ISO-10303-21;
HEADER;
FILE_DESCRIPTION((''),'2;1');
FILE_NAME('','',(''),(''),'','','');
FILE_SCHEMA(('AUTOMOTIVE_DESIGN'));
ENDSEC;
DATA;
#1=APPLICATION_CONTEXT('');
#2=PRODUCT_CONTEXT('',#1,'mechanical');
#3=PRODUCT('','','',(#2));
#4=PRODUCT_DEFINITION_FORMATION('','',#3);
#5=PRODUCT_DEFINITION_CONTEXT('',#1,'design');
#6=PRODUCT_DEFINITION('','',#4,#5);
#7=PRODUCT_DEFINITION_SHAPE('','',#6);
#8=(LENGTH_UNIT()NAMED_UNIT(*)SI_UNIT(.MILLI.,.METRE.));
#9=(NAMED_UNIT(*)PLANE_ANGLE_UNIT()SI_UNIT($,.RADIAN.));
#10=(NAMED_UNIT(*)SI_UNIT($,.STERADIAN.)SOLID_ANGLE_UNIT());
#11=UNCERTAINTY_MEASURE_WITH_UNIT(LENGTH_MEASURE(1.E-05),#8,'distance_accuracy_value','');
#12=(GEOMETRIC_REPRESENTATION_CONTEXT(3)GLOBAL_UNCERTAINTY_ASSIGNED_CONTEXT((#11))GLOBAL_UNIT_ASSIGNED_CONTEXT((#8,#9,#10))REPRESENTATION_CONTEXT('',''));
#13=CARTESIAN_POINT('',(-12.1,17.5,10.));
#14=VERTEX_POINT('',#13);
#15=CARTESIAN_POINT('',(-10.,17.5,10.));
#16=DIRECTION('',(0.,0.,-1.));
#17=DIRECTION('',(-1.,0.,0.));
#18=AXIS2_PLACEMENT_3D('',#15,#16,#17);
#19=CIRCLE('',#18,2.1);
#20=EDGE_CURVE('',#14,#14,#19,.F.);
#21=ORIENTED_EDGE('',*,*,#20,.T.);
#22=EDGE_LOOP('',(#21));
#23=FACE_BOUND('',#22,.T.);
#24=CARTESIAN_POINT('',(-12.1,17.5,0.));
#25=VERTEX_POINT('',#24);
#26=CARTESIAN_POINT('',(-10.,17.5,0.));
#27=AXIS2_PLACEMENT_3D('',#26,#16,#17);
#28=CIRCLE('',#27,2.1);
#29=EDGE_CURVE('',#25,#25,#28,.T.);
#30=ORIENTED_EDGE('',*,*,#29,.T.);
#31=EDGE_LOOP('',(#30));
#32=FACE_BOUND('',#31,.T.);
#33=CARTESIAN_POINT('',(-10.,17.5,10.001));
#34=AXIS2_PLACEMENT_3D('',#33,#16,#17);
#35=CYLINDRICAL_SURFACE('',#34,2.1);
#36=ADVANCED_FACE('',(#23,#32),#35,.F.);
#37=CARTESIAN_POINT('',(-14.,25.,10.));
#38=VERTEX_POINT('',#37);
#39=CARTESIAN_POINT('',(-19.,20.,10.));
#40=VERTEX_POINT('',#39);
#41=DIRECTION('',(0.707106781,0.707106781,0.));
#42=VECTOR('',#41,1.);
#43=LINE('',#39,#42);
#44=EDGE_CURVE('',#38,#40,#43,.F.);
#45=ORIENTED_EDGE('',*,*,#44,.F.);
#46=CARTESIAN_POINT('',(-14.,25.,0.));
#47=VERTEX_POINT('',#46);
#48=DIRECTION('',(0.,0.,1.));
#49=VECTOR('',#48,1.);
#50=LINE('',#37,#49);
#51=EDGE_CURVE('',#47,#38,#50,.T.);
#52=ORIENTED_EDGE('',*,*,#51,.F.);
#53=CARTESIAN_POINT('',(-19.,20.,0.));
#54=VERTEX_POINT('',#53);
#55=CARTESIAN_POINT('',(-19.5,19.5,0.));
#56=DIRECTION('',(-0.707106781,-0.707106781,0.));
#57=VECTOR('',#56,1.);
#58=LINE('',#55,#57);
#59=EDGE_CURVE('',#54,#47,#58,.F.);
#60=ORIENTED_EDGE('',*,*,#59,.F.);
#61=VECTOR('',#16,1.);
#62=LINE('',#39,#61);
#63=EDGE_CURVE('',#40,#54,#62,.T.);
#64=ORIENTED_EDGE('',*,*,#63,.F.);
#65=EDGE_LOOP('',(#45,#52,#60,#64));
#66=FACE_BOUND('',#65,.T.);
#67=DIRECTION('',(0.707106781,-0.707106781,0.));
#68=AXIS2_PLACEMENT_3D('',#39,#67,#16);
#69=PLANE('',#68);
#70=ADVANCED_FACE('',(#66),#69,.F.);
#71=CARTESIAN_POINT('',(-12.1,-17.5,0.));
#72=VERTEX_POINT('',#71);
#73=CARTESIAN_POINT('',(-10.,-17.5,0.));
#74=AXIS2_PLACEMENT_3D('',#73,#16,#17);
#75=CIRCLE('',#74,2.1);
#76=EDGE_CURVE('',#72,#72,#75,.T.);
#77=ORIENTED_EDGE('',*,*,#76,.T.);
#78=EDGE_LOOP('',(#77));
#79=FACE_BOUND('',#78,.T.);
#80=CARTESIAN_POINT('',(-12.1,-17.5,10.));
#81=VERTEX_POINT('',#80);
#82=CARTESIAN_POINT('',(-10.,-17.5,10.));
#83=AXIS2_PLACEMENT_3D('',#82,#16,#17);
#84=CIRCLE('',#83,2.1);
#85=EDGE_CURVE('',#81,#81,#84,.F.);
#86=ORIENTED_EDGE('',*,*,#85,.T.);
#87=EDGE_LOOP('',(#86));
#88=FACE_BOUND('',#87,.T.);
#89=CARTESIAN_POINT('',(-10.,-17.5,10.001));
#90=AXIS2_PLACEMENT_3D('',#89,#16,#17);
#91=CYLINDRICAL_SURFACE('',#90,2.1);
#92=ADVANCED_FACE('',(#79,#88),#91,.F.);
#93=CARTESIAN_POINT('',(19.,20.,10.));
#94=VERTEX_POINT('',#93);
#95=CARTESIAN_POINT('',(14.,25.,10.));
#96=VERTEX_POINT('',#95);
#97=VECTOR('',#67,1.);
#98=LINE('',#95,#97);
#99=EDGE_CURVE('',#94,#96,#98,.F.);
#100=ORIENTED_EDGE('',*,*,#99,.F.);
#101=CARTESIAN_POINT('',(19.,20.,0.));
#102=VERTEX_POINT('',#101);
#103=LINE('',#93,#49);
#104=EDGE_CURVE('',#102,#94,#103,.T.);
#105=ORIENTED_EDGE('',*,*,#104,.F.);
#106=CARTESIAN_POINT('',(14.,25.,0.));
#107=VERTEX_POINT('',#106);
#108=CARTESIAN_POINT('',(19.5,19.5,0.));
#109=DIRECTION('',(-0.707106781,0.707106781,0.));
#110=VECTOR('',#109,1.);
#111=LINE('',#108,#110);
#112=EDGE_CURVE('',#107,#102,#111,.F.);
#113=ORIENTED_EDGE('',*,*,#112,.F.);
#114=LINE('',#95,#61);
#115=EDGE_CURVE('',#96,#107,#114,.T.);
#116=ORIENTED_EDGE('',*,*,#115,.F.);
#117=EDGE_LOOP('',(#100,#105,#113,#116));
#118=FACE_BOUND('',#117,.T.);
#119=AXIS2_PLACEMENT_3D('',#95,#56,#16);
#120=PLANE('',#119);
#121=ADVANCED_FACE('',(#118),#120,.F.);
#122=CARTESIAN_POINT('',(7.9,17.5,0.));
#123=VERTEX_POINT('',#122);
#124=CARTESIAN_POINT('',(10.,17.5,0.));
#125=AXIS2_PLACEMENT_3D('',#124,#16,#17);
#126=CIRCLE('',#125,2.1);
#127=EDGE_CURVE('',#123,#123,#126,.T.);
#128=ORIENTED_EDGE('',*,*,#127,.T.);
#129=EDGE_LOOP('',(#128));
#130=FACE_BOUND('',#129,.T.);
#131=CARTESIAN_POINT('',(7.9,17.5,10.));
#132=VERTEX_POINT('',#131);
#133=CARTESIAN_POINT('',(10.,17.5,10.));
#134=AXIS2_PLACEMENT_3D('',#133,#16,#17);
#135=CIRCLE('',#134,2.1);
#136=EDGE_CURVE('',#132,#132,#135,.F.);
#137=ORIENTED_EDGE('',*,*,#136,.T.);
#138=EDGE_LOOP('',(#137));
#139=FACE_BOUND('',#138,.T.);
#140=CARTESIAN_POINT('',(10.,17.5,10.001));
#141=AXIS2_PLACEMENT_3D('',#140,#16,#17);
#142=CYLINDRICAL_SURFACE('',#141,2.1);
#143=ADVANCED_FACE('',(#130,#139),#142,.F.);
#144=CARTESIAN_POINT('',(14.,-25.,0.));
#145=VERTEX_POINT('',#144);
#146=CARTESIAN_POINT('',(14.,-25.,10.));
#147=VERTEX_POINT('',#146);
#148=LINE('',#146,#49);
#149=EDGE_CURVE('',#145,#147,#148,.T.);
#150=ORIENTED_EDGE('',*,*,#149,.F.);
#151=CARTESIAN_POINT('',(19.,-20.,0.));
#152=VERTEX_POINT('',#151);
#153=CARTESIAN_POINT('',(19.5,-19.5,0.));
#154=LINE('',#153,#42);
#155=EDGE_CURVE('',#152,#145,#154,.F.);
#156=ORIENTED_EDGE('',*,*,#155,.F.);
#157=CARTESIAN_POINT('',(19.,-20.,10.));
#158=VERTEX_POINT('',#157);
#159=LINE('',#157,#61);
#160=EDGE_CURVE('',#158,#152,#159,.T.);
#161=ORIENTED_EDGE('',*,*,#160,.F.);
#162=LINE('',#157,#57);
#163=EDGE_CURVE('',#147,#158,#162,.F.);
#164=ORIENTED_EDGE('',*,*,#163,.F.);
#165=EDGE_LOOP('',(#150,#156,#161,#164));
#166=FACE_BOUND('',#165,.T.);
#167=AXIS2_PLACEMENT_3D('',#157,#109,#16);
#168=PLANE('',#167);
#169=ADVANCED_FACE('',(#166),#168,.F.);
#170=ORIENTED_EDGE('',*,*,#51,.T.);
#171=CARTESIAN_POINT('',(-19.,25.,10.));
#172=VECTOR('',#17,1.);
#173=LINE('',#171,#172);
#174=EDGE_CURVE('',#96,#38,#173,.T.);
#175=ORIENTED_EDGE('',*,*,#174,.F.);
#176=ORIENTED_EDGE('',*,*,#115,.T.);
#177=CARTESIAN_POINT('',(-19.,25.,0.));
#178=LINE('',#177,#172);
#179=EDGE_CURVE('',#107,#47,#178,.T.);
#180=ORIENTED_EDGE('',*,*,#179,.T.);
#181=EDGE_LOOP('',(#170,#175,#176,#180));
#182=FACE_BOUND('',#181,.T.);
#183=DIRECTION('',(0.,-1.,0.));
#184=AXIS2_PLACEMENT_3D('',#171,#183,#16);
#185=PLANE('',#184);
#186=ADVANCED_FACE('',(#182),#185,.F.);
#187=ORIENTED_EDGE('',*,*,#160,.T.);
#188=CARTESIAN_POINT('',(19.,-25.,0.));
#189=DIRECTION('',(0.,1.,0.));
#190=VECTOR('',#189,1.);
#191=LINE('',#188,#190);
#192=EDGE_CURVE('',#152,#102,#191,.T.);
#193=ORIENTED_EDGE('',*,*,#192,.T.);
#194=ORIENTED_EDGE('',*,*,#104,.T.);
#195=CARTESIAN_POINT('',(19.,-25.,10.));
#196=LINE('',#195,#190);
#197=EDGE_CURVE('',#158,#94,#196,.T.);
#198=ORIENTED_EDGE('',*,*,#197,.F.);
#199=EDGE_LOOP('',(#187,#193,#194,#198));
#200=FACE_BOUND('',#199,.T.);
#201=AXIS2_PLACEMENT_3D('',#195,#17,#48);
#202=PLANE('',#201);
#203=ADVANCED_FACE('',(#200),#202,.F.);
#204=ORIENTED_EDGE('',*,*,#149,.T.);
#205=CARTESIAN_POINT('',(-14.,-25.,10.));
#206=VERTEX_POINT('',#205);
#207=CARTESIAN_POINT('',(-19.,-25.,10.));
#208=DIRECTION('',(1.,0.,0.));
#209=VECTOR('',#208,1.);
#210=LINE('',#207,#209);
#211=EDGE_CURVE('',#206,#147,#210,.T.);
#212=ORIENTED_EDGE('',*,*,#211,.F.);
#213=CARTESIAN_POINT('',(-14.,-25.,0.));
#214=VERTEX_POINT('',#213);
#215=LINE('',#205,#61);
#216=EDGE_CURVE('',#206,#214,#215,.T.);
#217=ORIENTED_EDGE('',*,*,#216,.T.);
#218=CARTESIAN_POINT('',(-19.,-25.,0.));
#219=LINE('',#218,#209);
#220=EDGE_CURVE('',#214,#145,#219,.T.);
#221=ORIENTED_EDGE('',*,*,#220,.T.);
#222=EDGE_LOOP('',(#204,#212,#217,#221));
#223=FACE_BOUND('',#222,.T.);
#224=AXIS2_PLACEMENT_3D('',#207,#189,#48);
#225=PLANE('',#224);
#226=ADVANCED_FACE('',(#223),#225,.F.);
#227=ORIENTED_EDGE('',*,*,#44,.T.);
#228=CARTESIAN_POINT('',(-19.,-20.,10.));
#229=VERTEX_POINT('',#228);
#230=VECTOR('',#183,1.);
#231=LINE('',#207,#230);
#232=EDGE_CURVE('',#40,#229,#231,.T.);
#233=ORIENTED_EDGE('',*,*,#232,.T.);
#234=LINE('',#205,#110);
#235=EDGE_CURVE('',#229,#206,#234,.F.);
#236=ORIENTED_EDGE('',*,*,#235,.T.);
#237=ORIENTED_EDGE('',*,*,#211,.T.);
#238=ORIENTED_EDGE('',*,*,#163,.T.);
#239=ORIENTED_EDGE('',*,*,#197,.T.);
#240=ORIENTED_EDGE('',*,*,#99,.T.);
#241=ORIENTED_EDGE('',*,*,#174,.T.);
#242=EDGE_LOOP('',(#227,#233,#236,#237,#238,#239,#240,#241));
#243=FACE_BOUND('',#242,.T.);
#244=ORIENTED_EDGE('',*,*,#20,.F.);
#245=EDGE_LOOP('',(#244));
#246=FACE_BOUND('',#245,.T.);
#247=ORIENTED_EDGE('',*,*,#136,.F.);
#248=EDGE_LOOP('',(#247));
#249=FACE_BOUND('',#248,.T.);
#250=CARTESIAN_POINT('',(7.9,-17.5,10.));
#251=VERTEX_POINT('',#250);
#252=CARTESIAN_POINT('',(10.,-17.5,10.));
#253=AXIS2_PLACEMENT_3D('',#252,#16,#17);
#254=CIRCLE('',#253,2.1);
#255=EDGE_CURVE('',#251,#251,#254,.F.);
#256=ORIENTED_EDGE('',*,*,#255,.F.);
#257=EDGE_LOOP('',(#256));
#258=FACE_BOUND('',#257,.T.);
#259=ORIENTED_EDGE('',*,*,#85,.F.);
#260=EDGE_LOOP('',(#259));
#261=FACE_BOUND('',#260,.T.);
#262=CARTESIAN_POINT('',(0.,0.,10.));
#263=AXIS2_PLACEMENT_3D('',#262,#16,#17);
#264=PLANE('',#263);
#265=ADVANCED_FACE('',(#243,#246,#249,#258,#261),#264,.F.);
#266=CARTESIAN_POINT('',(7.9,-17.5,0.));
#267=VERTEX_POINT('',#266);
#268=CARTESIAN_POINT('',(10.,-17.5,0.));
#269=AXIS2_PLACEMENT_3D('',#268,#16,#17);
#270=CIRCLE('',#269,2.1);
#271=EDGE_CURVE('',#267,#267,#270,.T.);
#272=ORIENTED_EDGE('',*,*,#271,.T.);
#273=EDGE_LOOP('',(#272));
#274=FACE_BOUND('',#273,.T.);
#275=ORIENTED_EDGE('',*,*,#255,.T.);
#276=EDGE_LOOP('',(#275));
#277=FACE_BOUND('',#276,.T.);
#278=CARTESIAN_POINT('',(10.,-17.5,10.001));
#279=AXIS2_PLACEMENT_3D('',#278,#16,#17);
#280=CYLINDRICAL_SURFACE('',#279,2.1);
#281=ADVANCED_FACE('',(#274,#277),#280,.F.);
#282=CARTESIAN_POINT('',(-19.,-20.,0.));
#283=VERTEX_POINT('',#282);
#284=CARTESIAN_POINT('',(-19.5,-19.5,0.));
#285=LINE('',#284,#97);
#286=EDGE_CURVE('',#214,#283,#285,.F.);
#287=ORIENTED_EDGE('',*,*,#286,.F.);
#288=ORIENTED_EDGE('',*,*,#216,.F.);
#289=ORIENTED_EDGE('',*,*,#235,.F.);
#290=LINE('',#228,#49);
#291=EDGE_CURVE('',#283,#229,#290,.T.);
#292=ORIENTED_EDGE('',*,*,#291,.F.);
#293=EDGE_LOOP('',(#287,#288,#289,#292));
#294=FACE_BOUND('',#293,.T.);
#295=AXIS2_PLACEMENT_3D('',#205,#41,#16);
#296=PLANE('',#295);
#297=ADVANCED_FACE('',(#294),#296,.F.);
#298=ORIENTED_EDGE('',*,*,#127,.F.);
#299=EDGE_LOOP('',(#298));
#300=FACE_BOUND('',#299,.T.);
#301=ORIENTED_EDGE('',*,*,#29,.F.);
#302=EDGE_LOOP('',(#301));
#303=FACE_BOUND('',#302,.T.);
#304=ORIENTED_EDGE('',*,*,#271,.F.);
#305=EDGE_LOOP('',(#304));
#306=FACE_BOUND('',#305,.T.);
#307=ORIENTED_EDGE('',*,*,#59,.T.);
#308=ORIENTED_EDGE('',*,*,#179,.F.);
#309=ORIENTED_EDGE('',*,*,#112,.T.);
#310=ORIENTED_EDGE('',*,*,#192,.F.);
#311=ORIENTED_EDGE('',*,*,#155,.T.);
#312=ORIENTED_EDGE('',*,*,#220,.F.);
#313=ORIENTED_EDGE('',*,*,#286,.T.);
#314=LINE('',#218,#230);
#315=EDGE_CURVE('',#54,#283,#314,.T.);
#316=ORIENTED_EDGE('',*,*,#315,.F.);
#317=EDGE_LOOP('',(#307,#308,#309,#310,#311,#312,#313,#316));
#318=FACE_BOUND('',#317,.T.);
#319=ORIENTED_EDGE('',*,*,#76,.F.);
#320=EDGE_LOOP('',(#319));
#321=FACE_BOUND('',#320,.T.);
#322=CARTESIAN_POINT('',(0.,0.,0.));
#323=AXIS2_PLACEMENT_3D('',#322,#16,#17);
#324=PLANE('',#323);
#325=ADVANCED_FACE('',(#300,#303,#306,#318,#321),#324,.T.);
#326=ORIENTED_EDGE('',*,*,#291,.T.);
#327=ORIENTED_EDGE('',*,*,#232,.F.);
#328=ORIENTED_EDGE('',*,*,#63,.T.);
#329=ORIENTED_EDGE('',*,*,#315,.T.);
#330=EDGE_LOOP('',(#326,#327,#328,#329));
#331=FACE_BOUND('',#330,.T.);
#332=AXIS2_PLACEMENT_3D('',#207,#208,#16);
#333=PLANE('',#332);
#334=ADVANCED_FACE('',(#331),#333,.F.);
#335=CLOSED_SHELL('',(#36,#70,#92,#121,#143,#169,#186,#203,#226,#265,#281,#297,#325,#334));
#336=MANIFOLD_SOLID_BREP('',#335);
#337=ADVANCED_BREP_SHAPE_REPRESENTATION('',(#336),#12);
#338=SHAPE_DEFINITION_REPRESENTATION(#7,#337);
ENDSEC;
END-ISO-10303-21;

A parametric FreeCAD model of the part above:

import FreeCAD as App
import Part
import Sketcher
from FreeCAD import Vector


def edges_at(feature, points):
    """Names of the edges that pass closest to the given points."""
    edges = feature.Shape.Edges
    near = lambda p: min(range(len(edges)), key=lambda i: edges[i].distToShape(Part.Vertex(*p))[0])
    return sorted({f"Edge{near(p) + 1}" for p in points})


def add_polygon(sketch, points):
    """Adds a closed chain of lines whose ends are joined by coincident constraints."""
    first, n = sketch.GeometryCount, len(points)
    for a, b in zip(points, points[1:] + points[:1]):
        sketch.addGeometry(Part.LineSegment(App.Vector(*a, 0), App.Vector(*b, 0)), False)
    for i in range(n):
        sketch.addConstraint(Sketcher.Constraint("Coincident", first + i, 2, first + (i + 1) % n, 1))

doc = App.newDocument("Part")
body = doc.addObject("PartDesign::Body", "Body")

# Sketch on XY plane
sketch1 = body.newObject("Sketcher::SketchObject", "Sketch")
sketch1.AttachmentSupport = (doc.getObject("XY_Plane"), [""])
sketch1.MapMode = "FlatFace"
add_polygon(sketch1, [(-19, 25), (-19, -25), (19, -25), (19, 25)])  # lines 0-3
sketch1.addConstraint(Sketcher.Constraint("Vertical", 0))
sketch1.addConstraint(Sketcher.Constraint("Horizontal", 1))
sketch1.addConstraint(Sketcher.Constraint("Vertical", 2))
sketch1.addConstraint(Sketcher.Constraint("Horizontal", 3))
sketch1.addConstraint(Sketcher.Constraint("Symmetric", 0, 2, 2, 2, -1, 1))
sketch1.addConstraint(Sketcher.Constraint("DistanceX", 1, 1, 1, 2, 38.0))
sketch1.addConstraint(Sketcher.Constraint("DistanceY", 0, 2, 0, 1, 50.0))
pad1 = body.newObject("PartDesign::Pad", "Pad")
pad1.Profile = sketch1
pad1.Length = 10
doc.recompute()

chamfer = body.newObject("PartDesign::Chamfer", "Chamfer")
chamfer.Base = (pad1, edges_at(pad1, [
    (19, -25, 5),
    (-19, -25, 5),
    (-19, 25, 5),
    (19, 25, 5),
]))
chamfer.Size = 5

# Sketch on XY plane
sketch2 = body.newObject("Sketcher::SketchObject", "Sketch001")
sketch2.AttachmentSupport = (doc.getObject("XY_Plane"), [""])
sketch2.MapMode = "FlatFace"
sketch2.addGeometry(Part.Circle(Vector(10, 17.5, 0), Vector(0, 0, 1), 2.1), False)
sketch2.addConstraint(Sketcher.Constraint("Diameter", 0, 4.2))
sketch2.addConstraint(Sketcher.Constraint("DistanceX", -1, 1, 0, 3, 10.0))
sketch2.addConstraint(Sketcher.Constraint("DistanceY", -1, 1, 0, 3, 17.5))
pocket1 = body.newObject("PartDesign::Pocket", "Pocket")
pocket1.Profile = sketch2
pocket1.Type = "UpToFirst"
pocket1.Reversed = True

# Sketch on XY plane
sketch3 = body.newObject("Sketcher::SketchObject", "Sketch002")
sketch3.AttachmentSupport = (doc.getObject("XY_Plane"), [""])
sketch3.MapMode = "FlatFace"
sketch3.addGeometry(Part.Circle(Vector(-10, 17.5, 0), Vector(0, 0, 1), 2.1), False)
sketch3.addConstraint(Sketcher.Constraint("Diameter", 0, 4.2))
sketch3.addConstraint(Sketcher.Constraint("DistanceX", 0, 3, -1, 1, 10.0))
sketch3.addConstraint(Sketcher.Constraint("DistanceY", -1, 1, 0, 3, 17.5))
pocket2 = body.newObject("PartDesign::Pocket", "Pocket001")
pocket2.Profile = sketch3
pocket2.Type = "UpToFirst"
pocket2.Reversed = True

# Sketch on XY plane
sketch4 = body.newObject("Sketcher::SketchObject", "Sketch003")
sketch4.AttachmentSupport = (doc.getObject("XY_Plane"), [""])
sketch4.MapMode = "FlatFace"
sketch4.addGeometry(Part.Circle(Vector(10, -17.5, 0), Vector(0, 0, 1), 2.1), False)
sketch4.addConstraint(Sketcher.Constraint("Diameter", 0, 4.2))
sketch4.addConstraint(Sketcher.Constraint("DistanceX", -1, 1, 0, 3, 10.0))
sketch4.addConstraint(Sketcher.Constraint("DistanceY", 0, 3, -1, 1, 17.5))
pocket3 = body.newObject("PartDesign::Pocket", "Pocket002")
pocket3.Profile = sketch4
pocket3.Type = "UpToFirst"
pocket3.Reversed = True

# Sketch on XY plane
sketch5 = body.newObject("Sketcher::SketchObject", "Sketch004")
sketch5.AttachmentSupport = (doc.getObject("XY_Plane"), [""])
sketch5.MapMode = "FlatFace"
sketch5.addGeometry(Part.Circle(Vector(-10, -17.5, 0), Vector(0, 0, 1), 2.1), False)
sketch5.addConstraint(Sketcher.Constraint("Diameter", 0, 4.2))
sketch5.addConstraint(Sketcher.Constraint("DistanceX", 0, 3, -1, 1, 10.0))
sketch5.addConstraint(Sketcher.Constraint("DistanceY", 0, 3, -1, 1, 17.5))
pocket4 = body.newObject("PartDesign::Pocket", "Pocket003")
pocket4.Profile = sketch5
pocket4.Type = "UpToFirst"
pocket4.Reversed = True

doc.recompute()
